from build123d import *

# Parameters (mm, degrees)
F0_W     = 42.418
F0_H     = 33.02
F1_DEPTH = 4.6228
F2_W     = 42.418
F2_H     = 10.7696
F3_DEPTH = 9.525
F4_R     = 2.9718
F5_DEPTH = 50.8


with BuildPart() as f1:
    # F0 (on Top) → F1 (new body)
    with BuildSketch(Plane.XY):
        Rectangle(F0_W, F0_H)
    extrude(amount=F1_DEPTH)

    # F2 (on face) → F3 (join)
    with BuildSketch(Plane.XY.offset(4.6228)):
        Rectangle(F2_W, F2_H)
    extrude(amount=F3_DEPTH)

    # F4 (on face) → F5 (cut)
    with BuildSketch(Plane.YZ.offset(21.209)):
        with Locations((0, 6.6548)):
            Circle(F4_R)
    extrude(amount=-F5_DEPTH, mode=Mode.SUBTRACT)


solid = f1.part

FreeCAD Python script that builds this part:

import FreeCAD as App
import Part
import Sketcher
from FreeCAD import Vector
Q = App.Units.Quantity


def add_polygon(sketch, points):
    """Adds a closed chain of lines whose ends are joined by coincident constraints."""
    first, n = sketch.GeometryCount, len(points)
    for a, b in zip(points, points[1:] + points[:1]):
        sketch.addGeometry(Part.LineSegment(App.Vector(*a, 0), App.Vector(*b, 0)), False)
    for i in range(n):
        sketch.addConstraint(Sketcher.Constraint("Coincident", first + i, 2, first + (i + 1) % n, 1))

doc = App.newDocument("Part")
body = doc.addObject("PartDesign::Body", "Body")

sketch1 = body.newObject("Sketcher::SketchObject", "Sketch")
sketch1.AttachmentSupport = (doc.getObject("XY_Plane"), [""])
sketch1.MapMode = "FlatFace"
add_polygon(sketch1, [(-21, 17), (-21, -17), (21, -17), (21, 17)])
sketch1.addConstraint([
    Sketcher.Constraint("Vertical", 0),
    Sketcher.Constraint("Horizontal", 1),
    Sketcher.Constraint("Vertical", 2),
    Sketcher.Constraint("Horizontal", 3),
    Sketcher.Constraint("Symmetric", 0, 2, 2, 2, -1, 1),
    Sketcher.Constraint("DistanceY", 0, 2, 0, 1, Q("1.3 in")),
    Sketcher.Constraint("DistanceX", 1, 1, 1, 2, Q("1.67 in")),
])
pad1 = body.newObject("PartDesign::Pad", "Pad")
pad1.Profile = sketch1
pad1.Length = Q("0.182 in")

sketch2 = body.newObject("Sketcher::SketchObject", "Sketch001")
sketch2.AttachmentSupport = (doc.getObject("XY_Plane"), [""])
sketch2.MapMode = "FlatFace"
sketch2.AttachmentOffset = App.Placement(Vector(0, 0, 0.182 * 25.4), App.Rotation())
add_polygon(sketch2, [(-21, 5), (-21, -5), (21, -5), (21, 5)])
sketch2.addConstraint([
    Sketcher.Constraint("Vertical", 0),
    Sketcher.Constraint("Horizontal", 1),
    Sketcher.Constraint("Vertical", 2),
    Sketcher.Constraint("Horizontal", 3),
    Sketcher.Constraint("Symmetric", 0, 2, 2, 2, -1, 1),
    Sketcher.Constraint("DistanceX", 1, 1, 1, 2, Q("1.67 in")),
    Sketcher.Constraint("DistanceY", 0, 2, 0, 1, Q("0.424 in")),
])
pad2 = body.newObject("PartDesign::Pad", "Pad001")
pad2.Profile = sketch2
pad2.Length = Q("0.375 in")

sketch3 = body.newObject("Sketcher::SketchObject", "Sketch002")
sketch3.AttachmentSupport = (doc.getObject("YZ_Plane"), [""])
sketch3.MapMode = "FlatFace"
sketch3.AttachmentOffset = App.Placement(Vector(0, 0, 0.835 * 25.4), App.Rotation())
sketch3.addGeometry(Part.Circle(Vector(0, 6.7, 0), Vector(0, 0, 1), 3), False)
sketch3.addConstraint([
    Sketcher.Constraint("PointOnObject", 0, 3, -2),
    Sketcher.Constraint("Diameter", 0, Q("0.234 in")),
    Sketcher.Constraint("DistanceY", -1, 1, 0, 3, Q("0.262 in")),
])
pocket1 = body.newObject("PartDesign::Pocket", "Pocket")
pocket1.Profile = sketch3
pocket1.Length = Q("2 in")

doc.recompute()
